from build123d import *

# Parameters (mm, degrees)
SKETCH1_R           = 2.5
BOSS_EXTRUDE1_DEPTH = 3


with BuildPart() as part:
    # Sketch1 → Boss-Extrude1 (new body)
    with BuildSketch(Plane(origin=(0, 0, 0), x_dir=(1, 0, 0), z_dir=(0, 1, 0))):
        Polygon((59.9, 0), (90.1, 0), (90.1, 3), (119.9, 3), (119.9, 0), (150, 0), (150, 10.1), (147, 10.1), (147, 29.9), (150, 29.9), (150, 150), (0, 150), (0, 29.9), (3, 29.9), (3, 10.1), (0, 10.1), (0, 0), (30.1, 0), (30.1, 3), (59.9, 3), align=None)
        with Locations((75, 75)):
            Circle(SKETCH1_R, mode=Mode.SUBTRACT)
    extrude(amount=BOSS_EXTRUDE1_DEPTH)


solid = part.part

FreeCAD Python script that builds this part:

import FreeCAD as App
import Part
import Sketcher

V = App.Vector


def add_polygon(sketch, points):
    """Adds a closed chain of lines whose ends are joined by coincident constraints."""
    first, n = sketch.GeometryCount, len(points)
    for a, b in zip(points, points[1:] + points[:1]):
        sketch.addGeometry(Part.LineSegment(App.Vector(*a, 0), App.Vector(*b, 0)), False)
    for i in range(n):
        sketch.addConstraint(Sketcher.Constraint("Coincident", first + i, 2, first + (i + 1) % n, 1))

doc = App.newDocument("Part")
body = doc.addObject("PartDesign::Body", "Body")

sketch1 = doc.addObject("Sketcher::SketchObject", "Sketch")
body.addObject(sketch1)
sketch1.AttachmentSupport = (doc.XZ_Plane, [""])
sketch1.MapMode = "FlatFace"
add_polygon(sketch1, [(59.9, 0), (90.1, 0), (90.1, -3), (119.9, -3), (119.9, 0), (150, 0), (150, -10.1), (147, -10.1), (147, -29.9), (150, -29.9), (150, -150), (0, -150), (0, -29.9), (3, -29.9), (3, -10.1), (0, -10.1), (0, 0), (30.1, 0), (30.1, -3), (59.9, -3)])
sketch1.addGeometry(Part.Circle(V(75, -75, 0), V(0, 0, 1), 2.5), False)
sketch1.addConstraint([
    Sketcher.Constraint("Horizontal", 0),
    Sketcher.Constraint("Vertical", 1),
    Sketcher.Constraint("Horizontal", 2),
    Sketcher.Constraint("Vertical", 3),
    Sketcher.Constraint("Horizontal", 4),
    Sketcher.Constraint("Vertical", 5),
    Sketcher.Constraint("Horizontal", 6),
    Sketcher.Constraint("Vertical", 7),
    Sketcher.Constraint("Horizontal", 8),
    Sketcher.Constraint("Vertical", 9),
    Sketcher.Constraint("Horizontal", 10),
    Sketcher.Constraint("Vertical", 11),
    Sketcher.Constraint("Horizontal", 12),
    Sketcher.Constraint("Vertical", 13),
    Sketcher.Constraint("Horizontal", 14),
    Sketcher.Constraint("Vertical", 15),
    Sketcher.Constraint("Horizontal", 16),
    Sketcher.Constraint("Vertical", 17),
    Sketcher.Constraint("Horizontal", 18),
    Sketcher.Constraint("Vertical", 19),
    Sketcher.Constraint("Coincident", 15, 2, -1, 1),
    Sketcher.Constraint("PointOnObject", 0, 2, -1),
    Sketcher.Constraint("PointOnObject", 3, 2, -1),
    Sketcher.Constraint("PointOnObject", 10, 2, -2),
    Sketcher.Constraint("Horizontal", 8, 2, 11, 2),
    Sketcher.Constraint("Horizontal", 6, 2, 13, 2),
    Sketcher.Constraint("Horizontal", 2, 2, 17, 2),
    Sketcher.Constraint("Vertical", 5, 2, 8, 2),
    Sketcher.Constraint("Equal", 8, 12),
    Sketcher.Constraint("Equal", 4, 16),
    Sketcher.Constraint("Equal", 2, 18),
    Sketcher.Constraint("Equal", 14, 1),
    Sketcher.Constraint("Diameter", 20, 5.0),
    Sketcher.Constraint("DistanceX", 6, 2, 6, 1, 3.0),
    Sketcher.Constraint("DistanceX", 10, 2, 10, 1, 150.0),
    Sketcher.Constraint("DistanceX", 0, 1, 0, 2, 30.2),
    Sketcher.Constraint("DistanceX", 2, 1, 2, 2, 29.8),
    Sketcher.Constraint("DistanceY", 5, 2, 5, 1, 10.1),
    Sketcher.Constraint("DistanceY", 7, 2, 7, 1, 19.8),
    Sketcher.Constraint("DistanceY", 9, 2, 9, 1, 120.1),
    Sketcher.Constraint("DistanceX", -1, 1, 20, 3, 75.0),
    Sketcher.Constraint("DistanceY", 20, 3, -1, 1, 75.0),
])
pad1 = doc.addObject("PartDesign::Pad", "Pad")
body.addObject(pad1)
pad1.Profile = sketch1
pad1.Length = 3
pad1.Reversed = True

doc.recompute()
